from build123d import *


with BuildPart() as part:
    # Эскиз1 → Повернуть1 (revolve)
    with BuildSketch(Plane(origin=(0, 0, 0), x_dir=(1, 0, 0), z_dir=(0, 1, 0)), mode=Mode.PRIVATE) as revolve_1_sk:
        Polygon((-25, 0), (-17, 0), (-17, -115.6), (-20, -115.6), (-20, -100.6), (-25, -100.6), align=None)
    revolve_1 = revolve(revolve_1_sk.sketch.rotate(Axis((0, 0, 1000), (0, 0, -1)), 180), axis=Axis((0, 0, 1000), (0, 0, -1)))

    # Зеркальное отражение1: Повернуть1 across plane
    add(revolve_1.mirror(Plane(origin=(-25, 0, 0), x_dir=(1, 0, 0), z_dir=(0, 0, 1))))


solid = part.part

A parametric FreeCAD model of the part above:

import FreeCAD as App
import Part
import Sketcher
Q = App.Units.Quantity

doc = App.newDocument("Part")
body = doc.addObject("PartDesign::Body", "Body")

sketch1 = body.newObject("Sketcher::SketchObject", "Sketch")
sketch1.AttachmentSupport = (doc.getObject("XZ_Plane"), [""])
sketch1.MapMode = "FlatFace"
sketch1.addGeometry(Part.LineSegment(App.Vector(-17, 0, 0), App.Vector(-25, 0, 0)), False)
sketch1.addGeometry(Part.LineSegment(App.Vector(-25, 0, 0), App.Vector(-25, 100.6, 0)), False)
sketch1.addGeometry(Part.LineSegment(App.Vector(-25, 100.6, 0), App.Vector(-20, 100.6, 0)), False)
sketch1.addGeometry(Part.LineSegment(App.Vector(-20, 100.6, 0), App.Vector(-20, 115.6, 0)), False)
sketch1.addGeometry(Part.LineSegment(App.Vector(-20, 115.6, 0), App.Vector(-17, 115.6, 0)), False)
sketch1.addGeometry(Part.LineSegment(App.Vector(-17, 115.6, 0), App.Vector(-17, 0, 0)), False)
sketch1.addConstraint(Sketcher.Constraint("Coincident", 0, 2, 1, 1))
sketch1.addConstraint(Sketcher.Constraint("Coincident", 1, 2, 2, 1))
sketch1.addConstraint(Sketcher.Constraint("Coincident", 2, 2, 3, 1))
sketch1.addConstraint(Sketcher.Constraint("Coincident", 3, 2, 4, 1))
sketch1.addConstraint(Sketcher.Constraint("Coincident", 4, 2, 5, 1))
sketch1.addConstraint(Sketcher.Constraint("Coincident", 5, 2, 0, 1))
sketch1.addConstraint(Sketcher.Constraint("Horizontal", 0))
sketch1.addConstraint(Sketcher.Constraint("Vertical", 1))
sketch1.addConstraint(Sketcher.Constraint("Horizontal", 2))
sketch1.addConstraint(Sketcher.Constraint("Vertical", 3))
sketch1.addConstraint(Sketcher.Constraint("Horizontal", 4))
sketch1.addConstraint(Sketcher.Constraint("Vertical", 5))
sketch1.addConstraint(Sketcher.Constraint("PointOnObject", 0, 2, -1))
sketch1.addConstraint(Sketcher.Constraint("DistanceX", 0, 2, 0, 1, Q("8 mm")))
sketch1.addConstraint(Sketcher.Constraint("DistanceX", 2, 1, 2, 2, Q("5 mm")))
sketch1.addConstraint(Sketcher.Constraint("DistanceY", 3, 1, 3, 2, Q("15 mm")))
sketch1.addConstraint(Sketcher.Constraint("DistanceY", 1, 1, 1, 2, Q("100.6 mm")))
sketch1.addConstraint(Sketcher.Constraint("DistanceX", 0, 2, -1, 1, Q("25 mm")))
revolution = body.newObject("PartDesign::Revolution", "Revolution")
revolution.Profile = sketch1
revolution.ReferenceAxis = (sketch1, ["V_Axis"])
revolution.Angle = 360
doc.recompute()

mirrored = body.newObject("PartDesign::Mirrored", "Mirrored")
mirrored.Originals = [revolution]
mirrored.MirrorPlane = (doc.getObject("XY_Plane"), [""])
body.Tip = mirrored

doc.recompute()
